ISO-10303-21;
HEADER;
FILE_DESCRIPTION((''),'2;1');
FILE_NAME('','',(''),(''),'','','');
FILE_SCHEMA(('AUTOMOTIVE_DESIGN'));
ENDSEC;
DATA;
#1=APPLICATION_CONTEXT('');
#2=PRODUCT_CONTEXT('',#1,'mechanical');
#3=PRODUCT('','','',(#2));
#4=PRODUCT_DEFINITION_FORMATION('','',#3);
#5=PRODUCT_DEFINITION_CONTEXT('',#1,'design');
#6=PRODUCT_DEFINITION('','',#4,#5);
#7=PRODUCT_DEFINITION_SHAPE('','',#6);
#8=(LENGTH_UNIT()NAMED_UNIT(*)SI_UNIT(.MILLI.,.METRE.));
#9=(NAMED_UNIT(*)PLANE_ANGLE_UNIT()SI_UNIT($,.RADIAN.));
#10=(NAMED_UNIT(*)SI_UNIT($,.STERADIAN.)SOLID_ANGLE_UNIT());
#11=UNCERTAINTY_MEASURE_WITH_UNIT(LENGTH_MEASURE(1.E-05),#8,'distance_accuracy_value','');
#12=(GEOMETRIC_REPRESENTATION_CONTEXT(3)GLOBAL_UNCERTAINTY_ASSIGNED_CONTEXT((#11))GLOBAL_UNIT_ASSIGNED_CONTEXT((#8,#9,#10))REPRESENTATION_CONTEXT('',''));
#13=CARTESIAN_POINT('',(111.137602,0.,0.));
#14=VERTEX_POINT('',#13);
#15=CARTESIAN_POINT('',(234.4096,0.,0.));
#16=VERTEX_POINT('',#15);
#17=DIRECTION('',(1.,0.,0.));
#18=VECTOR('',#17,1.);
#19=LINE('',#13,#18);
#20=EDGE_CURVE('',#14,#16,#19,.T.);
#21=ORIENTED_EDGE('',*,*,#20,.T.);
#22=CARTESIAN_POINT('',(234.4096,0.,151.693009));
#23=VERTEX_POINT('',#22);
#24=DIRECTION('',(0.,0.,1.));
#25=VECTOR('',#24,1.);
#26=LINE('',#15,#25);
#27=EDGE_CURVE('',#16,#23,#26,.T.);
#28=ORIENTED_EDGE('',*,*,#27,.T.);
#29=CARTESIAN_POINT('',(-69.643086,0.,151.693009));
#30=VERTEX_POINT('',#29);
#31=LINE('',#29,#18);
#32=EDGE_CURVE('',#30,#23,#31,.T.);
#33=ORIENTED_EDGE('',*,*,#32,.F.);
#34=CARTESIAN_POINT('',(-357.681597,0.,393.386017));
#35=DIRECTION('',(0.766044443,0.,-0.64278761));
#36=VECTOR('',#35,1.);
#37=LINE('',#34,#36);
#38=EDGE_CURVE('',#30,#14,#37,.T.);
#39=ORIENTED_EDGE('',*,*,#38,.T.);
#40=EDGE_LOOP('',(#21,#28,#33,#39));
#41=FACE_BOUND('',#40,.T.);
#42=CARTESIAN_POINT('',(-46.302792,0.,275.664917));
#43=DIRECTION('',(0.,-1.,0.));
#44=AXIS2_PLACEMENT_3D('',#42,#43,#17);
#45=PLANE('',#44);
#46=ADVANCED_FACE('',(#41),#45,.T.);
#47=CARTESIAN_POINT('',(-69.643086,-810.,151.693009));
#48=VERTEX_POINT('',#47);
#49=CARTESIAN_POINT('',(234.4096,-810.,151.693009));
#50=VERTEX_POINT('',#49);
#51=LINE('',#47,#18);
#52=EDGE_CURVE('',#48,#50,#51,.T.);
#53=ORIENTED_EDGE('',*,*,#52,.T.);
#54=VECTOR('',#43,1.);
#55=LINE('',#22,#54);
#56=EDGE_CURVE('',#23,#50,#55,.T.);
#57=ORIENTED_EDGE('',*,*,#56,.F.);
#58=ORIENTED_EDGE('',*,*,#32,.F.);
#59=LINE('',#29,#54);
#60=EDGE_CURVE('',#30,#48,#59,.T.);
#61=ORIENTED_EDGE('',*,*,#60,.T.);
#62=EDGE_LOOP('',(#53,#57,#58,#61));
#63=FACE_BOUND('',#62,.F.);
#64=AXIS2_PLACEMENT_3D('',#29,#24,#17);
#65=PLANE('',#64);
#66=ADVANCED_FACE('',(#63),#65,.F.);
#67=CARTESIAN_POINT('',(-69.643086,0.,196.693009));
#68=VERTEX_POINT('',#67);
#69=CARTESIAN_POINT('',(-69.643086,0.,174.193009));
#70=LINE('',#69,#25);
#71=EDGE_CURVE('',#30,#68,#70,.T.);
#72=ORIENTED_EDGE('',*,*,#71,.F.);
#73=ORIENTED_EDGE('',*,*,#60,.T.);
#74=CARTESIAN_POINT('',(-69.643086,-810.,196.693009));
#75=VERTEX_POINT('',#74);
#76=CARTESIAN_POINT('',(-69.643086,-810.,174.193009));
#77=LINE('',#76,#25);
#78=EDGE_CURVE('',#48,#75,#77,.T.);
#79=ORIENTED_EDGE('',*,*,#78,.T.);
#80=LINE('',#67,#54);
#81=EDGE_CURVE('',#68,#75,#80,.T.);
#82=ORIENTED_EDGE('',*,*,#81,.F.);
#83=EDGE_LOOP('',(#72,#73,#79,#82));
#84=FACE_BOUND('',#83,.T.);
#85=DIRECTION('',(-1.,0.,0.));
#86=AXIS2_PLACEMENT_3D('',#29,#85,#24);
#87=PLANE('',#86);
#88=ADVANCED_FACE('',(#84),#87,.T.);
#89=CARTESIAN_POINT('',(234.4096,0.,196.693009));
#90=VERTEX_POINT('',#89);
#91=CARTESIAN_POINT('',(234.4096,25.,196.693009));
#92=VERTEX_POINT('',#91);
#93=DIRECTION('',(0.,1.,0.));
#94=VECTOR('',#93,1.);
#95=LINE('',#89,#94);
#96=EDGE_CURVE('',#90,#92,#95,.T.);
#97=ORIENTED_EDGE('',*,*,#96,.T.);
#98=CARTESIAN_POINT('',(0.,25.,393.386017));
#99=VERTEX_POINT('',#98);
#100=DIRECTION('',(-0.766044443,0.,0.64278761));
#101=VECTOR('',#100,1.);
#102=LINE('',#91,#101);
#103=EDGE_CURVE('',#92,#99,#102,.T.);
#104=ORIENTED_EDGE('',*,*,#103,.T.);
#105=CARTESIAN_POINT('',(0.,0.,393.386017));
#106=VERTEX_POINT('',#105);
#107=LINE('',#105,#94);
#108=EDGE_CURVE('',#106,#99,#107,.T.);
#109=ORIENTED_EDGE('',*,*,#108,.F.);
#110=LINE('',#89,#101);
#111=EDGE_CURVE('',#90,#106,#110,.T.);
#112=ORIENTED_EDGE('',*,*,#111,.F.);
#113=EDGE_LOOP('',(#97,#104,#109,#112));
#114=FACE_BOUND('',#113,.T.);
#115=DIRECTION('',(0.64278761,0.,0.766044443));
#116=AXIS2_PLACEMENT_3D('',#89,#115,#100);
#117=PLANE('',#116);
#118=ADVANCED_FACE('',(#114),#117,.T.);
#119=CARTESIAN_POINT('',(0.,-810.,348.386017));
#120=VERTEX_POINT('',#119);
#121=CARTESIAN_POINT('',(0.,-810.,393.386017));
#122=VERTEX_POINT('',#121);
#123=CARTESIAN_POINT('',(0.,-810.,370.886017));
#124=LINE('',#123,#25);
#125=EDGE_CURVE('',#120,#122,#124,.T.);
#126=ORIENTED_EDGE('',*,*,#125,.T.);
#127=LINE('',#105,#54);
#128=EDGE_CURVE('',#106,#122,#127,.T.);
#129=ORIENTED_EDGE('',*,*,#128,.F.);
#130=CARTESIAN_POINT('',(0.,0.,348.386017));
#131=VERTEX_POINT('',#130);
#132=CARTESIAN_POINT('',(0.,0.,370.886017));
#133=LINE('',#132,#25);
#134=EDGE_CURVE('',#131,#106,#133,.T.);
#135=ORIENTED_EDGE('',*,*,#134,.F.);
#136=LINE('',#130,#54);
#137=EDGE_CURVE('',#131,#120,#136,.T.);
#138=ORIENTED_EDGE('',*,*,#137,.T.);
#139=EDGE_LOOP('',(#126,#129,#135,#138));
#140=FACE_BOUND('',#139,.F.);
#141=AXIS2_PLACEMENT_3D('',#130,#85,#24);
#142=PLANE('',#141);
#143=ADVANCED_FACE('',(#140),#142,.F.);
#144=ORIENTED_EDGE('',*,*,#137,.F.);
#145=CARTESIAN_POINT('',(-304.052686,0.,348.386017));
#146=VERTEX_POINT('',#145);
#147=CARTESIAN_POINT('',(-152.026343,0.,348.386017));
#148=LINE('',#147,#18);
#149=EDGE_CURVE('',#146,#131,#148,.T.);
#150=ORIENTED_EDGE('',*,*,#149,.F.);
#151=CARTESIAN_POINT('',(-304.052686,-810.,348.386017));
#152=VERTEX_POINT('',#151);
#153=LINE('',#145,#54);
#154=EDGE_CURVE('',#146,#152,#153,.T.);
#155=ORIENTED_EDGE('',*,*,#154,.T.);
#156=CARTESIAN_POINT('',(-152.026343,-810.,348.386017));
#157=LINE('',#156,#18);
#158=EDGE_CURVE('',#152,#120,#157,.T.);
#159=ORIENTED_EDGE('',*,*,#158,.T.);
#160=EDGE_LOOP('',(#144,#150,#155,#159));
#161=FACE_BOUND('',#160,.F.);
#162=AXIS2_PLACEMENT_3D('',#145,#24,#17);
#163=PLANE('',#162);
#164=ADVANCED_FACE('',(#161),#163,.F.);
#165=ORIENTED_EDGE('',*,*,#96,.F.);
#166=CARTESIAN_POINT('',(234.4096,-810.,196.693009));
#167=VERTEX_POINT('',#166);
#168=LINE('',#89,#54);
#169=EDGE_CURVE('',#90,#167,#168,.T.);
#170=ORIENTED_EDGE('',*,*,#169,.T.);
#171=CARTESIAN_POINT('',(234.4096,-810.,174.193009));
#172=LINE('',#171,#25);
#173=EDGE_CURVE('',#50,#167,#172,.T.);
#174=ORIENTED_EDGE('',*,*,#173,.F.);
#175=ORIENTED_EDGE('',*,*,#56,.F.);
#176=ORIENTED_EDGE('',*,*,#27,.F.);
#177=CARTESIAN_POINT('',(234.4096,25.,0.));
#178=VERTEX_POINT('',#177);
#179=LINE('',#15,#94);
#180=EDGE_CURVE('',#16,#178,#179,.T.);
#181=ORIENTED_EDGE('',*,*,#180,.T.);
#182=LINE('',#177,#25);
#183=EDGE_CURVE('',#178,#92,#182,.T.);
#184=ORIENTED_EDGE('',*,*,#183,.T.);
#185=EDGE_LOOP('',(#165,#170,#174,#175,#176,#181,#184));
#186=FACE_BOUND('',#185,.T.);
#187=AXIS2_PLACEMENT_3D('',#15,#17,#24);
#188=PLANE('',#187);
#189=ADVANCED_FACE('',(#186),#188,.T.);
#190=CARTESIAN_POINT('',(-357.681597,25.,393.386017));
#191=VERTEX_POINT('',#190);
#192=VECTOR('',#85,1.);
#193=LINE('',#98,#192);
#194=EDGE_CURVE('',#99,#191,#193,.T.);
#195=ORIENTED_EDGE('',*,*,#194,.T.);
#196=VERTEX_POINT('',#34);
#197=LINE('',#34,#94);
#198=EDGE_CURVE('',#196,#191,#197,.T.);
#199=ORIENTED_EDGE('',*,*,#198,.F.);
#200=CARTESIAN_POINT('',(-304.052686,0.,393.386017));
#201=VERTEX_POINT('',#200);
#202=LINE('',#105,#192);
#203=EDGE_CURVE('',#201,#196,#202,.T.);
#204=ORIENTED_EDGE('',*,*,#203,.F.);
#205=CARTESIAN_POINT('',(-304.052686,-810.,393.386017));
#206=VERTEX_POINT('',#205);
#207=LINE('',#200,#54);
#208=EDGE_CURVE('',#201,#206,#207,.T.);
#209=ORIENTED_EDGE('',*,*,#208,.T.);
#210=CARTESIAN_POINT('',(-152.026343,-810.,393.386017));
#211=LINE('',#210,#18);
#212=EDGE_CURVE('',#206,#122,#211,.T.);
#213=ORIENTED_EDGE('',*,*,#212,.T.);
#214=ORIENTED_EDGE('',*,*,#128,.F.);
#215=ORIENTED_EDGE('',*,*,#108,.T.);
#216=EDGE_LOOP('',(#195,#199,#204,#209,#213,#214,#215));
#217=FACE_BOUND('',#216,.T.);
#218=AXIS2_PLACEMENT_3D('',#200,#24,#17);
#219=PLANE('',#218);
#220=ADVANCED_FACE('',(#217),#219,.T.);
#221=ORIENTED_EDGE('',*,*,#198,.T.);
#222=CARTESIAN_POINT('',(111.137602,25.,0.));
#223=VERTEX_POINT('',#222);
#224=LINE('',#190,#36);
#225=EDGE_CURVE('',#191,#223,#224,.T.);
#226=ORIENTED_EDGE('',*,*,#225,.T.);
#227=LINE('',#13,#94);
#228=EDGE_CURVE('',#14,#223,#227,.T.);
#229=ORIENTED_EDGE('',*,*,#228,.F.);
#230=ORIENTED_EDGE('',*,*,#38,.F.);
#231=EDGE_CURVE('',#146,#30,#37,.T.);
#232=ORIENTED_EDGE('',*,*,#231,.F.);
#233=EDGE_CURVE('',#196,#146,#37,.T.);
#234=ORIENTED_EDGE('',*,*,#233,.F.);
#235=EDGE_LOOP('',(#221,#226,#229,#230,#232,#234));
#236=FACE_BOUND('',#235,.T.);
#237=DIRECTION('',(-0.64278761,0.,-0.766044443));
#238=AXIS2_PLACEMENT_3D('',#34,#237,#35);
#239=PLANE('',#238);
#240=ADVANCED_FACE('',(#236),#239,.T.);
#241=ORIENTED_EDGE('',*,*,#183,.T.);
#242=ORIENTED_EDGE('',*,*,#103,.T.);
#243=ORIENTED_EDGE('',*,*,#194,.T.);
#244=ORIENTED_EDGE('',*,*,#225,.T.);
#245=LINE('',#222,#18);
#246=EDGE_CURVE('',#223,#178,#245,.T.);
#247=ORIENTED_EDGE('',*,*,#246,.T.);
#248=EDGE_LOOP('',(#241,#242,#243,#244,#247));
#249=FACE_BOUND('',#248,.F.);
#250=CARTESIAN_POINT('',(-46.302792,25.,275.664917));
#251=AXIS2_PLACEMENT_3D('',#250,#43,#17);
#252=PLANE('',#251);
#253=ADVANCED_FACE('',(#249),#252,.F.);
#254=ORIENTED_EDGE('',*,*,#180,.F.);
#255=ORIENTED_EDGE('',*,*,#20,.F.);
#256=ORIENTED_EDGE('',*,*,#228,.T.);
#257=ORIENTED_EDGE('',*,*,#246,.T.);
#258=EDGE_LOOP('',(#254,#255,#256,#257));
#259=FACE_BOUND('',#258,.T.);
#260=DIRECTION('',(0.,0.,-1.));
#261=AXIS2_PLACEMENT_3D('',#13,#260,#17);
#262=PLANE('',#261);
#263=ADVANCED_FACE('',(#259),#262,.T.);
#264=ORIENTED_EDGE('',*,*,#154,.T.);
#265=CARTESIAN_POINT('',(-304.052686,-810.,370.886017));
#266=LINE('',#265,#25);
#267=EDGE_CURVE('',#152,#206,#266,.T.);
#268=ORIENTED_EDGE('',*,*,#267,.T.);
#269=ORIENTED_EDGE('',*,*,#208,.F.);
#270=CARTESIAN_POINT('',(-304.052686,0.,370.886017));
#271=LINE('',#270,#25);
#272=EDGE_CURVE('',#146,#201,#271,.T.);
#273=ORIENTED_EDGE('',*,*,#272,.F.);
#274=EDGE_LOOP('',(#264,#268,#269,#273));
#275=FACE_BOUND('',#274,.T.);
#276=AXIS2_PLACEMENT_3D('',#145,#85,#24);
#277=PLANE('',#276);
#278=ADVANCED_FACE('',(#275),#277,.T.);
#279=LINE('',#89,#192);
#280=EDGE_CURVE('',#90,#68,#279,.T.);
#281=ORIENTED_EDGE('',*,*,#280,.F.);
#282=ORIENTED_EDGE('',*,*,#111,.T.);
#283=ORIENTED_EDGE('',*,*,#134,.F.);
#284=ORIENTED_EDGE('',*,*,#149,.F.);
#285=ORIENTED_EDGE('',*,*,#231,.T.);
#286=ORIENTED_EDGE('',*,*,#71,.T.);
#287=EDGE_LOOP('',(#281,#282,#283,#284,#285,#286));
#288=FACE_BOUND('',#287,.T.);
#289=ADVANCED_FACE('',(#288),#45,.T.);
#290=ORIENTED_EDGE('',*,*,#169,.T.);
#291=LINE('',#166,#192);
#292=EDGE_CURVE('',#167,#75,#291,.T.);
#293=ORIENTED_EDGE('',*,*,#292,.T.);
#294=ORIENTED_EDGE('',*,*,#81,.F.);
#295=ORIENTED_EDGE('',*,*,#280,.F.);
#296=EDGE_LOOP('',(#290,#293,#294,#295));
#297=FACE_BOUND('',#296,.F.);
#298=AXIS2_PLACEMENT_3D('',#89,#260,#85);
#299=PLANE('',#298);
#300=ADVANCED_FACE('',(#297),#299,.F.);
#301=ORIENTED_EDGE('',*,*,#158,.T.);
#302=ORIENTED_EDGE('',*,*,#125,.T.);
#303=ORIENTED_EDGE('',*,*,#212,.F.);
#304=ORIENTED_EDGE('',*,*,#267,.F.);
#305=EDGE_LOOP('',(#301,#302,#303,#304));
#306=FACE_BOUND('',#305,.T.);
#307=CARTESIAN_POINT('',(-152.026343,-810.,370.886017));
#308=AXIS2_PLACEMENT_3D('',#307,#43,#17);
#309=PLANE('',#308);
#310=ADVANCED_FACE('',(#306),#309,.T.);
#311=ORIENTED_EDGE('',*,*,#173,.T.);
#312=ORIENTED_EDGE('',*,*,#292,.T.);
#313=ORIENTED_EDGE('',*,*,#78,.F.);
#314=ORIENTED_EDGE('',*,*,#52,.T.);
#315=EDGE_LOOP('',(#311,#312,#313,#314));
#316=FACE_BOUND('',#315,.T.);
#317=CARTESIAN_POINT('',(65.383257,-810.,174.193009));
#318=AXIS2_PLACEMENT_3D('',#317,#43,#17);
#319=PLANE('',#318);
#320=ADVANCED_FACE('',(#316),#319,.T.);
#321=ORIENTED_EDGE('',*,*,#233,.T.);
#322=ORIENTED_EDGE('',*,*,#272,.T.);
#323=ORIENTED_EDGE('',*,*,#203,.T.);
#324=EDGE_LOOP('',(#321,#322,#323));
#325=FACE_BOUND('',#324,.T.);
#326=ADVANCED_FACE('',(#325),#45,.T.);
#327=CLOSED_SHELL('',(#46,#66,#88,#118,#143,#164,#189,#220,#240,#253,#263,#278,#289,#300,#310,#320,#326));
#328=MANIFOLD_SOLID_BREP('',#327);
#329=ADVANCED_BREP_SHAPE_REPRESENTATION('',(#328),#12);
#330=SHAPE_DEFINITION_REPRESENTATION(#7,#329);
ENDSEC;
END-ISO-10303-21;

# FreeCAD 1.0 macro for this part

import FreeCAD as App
import Part
import Sketcher
Q = App.Units.Quantity

doc = App.newDocument("Part")
body = doc.addObject("PartDesign::Body", "Body")

# Sketch on XZ plane
sketch1 = body.newObject("Sketcher::SketchObject", "Sketch")
sketch1.AttachmentSupport = (doc.getObject("XZ_Plane"), [""])
sketch1.MapMode = "FlatFace"
sketch1.addGeometry([
    Part.LineSegment(App.Vector(111, 0, 0), App.Vector(234, 0, 0)),  # 0
    Part.LineSegment(App.Vector(234, 0, 0), App.Vector(234, 197, 0)),  # 1
    Part.LineSegment(App.Vector(234, 197, 0), App.Vector(0, 393, 0)),  # 2
    Part.LineSegment(App.Vector(0, 393, 0), App.Vector(-358, 393, 0)),  # 3
    Part.LineSegment(App.Vector(-358, 393, 0), App.Vector(111, 0, 0)),  # 4
], False)
sketch1.addConstraint([
    Sketcher.Constraint("Coincident", 0, 2, 1, 1),
    Sketcher.Constraint("Coincident", 1, 2, 2, 1),
    Sketcher.Constraint("Coincident", 2, 2, 3, 1),
    Sketcher.Constraint("Coincident", 3, 2, 4, 1),
    Sketcher.Constraint("Coincident", 4, 2, 0, 1),
    Sketcher.Constraint("Horizontal", 0),
    Sketcher.Constraint("Vertical", 1),
    Sketcher.Constraint("Horizontal", 3),
    Sketcher.Constraint("PointOnObject", 0, 2, -1),
    Sketcher.Constraint("PointOnObject", 2, 2, -2),
    Sketcher.Constraint("Parallel", 2, 4),
    Sketcher.Constraint("Angle", 2, Q("140 deg")),
    Sketcher.Constraint("Distance", 2, Q("306 mm")),
    Sketcher.Constraint("Distance", 4, Q("612 mm")),
    Sketcher.Constraint("DistanceX", -1, 1, 4, 2, Q("111.137602 mm")),
])
pad1 = body.newObject("PartDesign::Pad", "Pad")
pad1.Profile = sketch1
pad1.Length = 25
pad1.Reversed = True

# Sketch on XZ plane
sketch2 = body.newObject("Sketcher::SketchObject", "Sketch001")
sketch2.AttachmentSupport = (doc.getObject("XZ_Plane"), [""])
sketch2.MapMode = "FlatFace"
sketch2.addGeometry([
    Part.LineSegment(App.Vector(-304, 393, 0), App.Vector(-304, 348, 0)),  # 0
    Part.LineSegment(App.Vector(-304, 348, 0), App.Vector(0, 348, 0)),  # 1
    Part.LineSegment(App.Vector(0, 348, 0), App.Vector(0, 393, 0)),  # 2
    Part.LineSegment(App.Vector(0, 393, 0), App.Vector(-304, 393, 0)),  # 3
    Part.LineSegment(App.Vector(-70, 197, 0), App.Vector(-70, 152, 0)),  # 4
    Part.LineSegment(App.Vector(-70, 152, 0), App.Vector(234, 152, 0)),  # 5
    Part.LineSegment(App.Vector(234, 152, 0), App.Vector(234, 197, 0)),  # 6
    Part.LineSegment(App.Vector(234, 197, 0), App.Vector(-70, 197, 0)),  # 7
], False)
sketch2.addConstraint([
    Sketcher.Constraint("Coincident", 0, 2, 1, 1),
    Sketcher.Constraint("Coincident", 1, 2, 2, 1),
    Sketcher.Constraint("Coincident", 2, 2, 3, 1),
    Sketcher.Constraint("Coincident", 3, 2, 0, 1),
    Sketcher.Constraint("Coincident", 4, 2, 5, 1),
    Sketcher.Constraint("Coincident", 5, 2, 6, 1),
    Sketcher.Constraint("Coincident", 6, 2, 7, 1),
    Sketcher.Constraint("Coincident", 7, 2, 4, 1),
    Sketcher.Constraint("Vertical", 0),
    Sketcher.Constraint("Horizontal", 1),
    Sketcher.Constraint("Vertical", 2),
    Sketcher.Constraint("Horizontal", 3),
    Sketcher.Constraint("Vertical", 4),
    Sketcher.Constraint("Horizontal", 5),
    Sketcher.Constraint("Vertical", 6),
    Sketcher.Constraint("Horizontal", 7),
    Sketcher.Constraint("PointOnObject", 1, 2, -2),
    Sketcher.Constraint("Equal", 3, 5),
    Sketcher.Constraint("Equal", 2, 4),
    Sketcher.Constraint("DistanceY", 0, 2, 0, 1, Q("45 mm")),
    Sketcher.Constraint("DistanceX", -1, 1, 5, 2, Q("234.4096 mm")),
    Sketcher.Constraint("DistanceX", 1, 1, 1, 2, Q("304.052686 mm")),
    Sketcher.Constraint("DistanceY", -1, 1, 4, 2, Q("151.693009 mm")),
    Sketcher.Constraint("DistanceY", 4, 2, 1, 2, Q("196.693009 mm")),
])
pad2 = body.newObject("PartDesign::Pad", "Pad001")
pad2.Profile = sketch2
pad2.Length = 810

doc.recompute()
